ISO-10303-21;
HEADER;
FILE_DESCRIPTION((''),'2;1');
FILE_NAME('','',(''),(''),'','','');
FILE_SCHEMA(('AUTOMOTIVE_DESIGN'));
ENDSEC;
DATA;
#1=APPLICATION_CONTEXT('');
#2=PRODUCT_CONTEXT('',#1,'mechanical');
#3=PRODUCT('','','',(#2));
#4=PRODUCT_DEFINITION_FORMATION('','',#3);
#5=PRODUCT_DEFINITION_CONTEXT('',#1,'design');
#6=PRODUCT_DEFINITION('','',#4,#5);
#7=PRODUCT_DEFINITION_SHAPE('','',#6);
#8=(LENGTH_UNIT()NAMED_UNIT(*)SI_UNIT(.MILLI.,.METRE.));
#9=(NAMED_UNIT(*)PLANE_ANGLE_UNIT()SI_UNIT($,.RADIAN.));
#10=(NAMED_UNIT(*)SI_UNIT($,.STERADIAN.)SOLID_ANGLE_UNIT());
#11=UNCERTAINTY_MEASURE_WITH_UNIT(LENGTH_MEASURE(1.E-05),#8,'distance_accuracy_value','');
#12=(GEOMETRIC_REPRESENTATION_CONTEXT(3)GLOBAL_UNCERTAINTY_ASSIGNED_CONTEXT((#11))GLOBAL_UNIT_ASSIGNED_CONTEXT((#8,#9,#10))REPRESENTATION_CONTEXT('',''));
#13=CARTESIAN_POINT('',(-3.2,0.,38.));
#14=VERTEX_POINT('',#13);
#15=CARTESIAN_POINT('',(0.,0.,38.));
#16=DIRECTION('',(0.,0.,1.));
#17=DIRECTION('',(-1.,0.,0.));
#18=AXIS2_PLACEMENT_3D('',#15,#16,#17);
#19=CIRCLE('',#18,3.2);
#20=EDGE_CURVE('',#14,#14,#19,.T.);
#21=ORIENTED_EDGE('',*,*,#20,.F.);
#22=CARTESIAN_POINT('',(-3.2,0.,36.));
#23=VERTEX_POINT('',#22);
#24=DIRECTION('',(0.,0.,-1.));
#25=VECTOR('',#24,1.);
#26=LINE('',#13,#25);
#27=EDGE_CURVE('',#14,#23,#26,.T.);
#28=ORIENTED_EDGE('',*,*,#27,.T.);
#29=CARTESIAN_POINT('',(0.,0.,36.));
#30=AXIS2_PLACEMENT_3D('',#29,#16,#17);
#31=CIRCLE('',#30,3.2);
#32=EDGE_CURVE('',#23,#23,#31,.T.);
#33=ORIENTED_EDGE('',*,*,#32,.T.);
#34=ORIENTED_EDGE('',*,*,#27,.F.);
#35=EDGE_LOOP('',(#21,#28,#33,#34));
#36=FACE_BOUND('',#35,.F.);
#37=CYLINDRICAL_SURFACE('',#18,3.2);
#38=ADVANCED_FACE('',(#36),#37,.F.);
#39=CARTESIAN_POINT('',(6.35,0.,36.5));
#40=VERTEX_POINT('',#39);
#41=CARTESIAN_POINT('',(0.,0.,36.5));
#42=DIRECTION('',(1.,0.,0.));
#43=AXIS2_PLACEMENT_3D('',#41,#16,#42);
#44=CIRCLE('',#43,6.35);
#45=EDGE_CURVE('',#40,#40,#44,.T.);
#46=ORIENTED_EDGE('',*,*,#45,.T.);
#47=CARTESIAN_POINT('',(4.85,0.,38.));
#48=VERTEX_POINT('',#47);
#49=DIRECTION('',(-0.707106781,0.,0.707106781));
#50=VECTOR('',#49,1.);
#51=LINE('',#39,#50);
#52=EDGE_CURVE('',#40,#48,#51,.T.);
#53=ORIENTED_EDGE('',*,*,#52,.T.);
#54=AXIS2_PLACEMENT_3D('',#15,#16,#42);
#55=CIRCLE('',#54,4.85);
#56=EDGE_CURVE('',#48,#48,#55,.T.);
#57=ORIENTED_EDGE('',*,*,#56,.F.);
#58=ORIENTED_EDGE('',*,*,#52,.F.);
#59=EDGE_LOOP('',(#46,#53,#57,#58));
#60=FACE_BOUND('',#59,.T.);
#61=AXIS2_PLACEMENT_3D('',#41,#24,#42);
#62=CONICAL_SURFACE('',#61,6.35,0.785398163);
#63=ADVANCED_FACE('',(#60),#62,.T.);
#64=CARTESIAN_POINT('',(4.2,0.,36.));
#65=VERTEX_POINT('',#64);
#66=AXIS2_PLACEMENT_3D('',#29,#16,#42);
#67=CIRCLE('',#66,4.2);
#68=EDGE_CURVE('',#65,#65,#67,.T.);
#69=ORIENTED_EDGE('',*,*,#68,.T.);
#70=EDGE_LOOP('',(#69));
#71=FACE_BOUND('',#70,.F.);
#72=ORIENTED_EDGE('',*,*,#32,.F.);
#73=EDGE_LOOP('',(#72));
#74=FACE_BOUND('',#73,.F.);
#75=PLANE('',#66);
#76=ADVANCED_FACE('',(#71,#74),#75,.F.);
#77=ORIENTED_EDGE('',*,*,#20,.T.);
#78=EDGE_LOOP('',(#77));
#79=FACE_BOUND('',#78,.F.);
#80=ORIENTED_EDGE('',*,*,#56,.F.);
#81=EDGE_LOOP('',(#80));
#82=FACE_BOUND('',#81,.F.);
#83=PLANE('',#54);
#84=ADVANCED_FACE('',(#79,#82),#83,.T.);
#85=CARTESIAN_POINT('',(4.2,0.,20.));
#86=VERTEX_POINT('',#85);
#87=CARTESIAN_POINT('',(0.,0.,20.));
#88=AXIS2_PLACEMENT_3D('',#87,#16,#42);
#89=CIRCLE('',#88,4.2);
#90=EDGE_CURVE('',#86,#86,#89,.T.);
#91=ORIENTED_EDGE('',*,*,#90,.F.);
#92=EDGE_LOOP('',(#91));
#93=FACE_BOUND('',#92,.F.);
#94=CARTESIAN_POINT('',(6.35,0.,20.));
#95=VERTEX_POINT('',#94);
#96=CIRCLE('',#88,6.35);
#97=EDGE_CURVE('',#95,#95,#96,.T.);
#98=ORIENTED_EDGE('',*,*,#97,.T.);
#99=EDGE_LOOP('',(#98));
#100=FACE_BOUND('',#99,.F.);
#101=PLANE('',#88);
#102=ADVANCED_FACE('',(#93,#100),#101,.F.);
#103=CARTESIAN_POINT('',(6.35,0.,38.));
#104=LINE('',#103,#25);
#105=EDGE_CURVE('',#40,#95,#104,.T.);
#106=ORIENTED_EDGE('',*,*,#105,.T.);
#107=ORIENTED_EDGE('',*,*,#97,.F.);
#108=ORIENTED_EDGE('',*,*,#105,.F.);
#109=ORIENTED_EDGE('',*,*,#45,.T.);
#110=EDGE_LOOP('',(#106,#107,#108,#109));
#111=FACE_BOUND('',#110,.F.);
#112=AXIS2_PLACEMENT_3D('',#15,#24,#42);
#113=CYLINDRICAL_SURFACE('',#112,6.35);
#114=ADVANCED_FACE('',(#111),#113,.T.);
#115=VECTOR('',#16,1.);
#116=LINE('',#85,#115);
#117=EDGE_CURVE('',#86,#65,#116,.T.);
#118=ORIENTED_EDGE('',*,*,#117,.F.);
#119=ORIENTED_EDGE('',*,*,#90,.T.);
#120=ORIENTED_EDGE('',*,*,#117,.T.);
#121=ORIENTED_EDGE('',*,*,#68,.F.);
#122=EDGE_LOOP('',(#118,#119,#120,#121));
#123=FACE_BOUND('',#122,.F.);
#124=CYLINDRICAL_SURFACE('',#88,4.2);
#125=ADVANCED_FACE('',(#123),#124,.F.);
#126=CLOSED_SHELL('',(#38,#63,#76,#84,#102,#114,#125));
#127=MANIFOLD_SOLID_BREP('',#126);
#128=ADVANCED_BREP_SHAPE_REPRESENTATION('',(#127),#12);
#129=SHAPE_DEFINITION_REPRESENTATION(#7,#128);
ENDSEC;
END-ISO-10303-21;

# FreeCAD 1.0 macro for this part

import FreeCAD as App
import Part
import Sketcher
from FreeCAD import Vector


def edges_at(feature, points):
    """Names of the edges that pass closest to the given points."""
    edges = feature.Shape.Edges
    near = lambda p: min(range(len(edges)), key=lambda i: edges[i].distToShape(Part.Vertex(*p))[0])
    return sorted({f"Edge{near(p) + 1}" for p in points})


def add_polygon(sketch, points):
    """Adds a closed chain of lines whose ends are joined by coincident constraints."""
    first, n = sketch.GeometryCount, len(points)
    for a, b in zip(points, points[1:] + points[:1]):
        sketch.addGeometry(Part.LineSegment(App.Vector(*a, 0), App.Vector(*b, 0)), False)
    for i in range(n):
        sketch.addConstraint(Sketcher.Constraint("Coincident", first + i, 2, first + (i + 1) % n, 1))

doc = App.newDocument("Part")
params = doc.addObject("Spreadsheet::Sheet", "Params")
for row, (alias, value) in enumerate([
    ("sketch1_height", "16 mm"),
    ("sketch1_height2", "18 mm"),
    ("sketch1_width", "4.2 mm"),
    ("sketch1_width2", "2.15 mm"),
    ("revolution_angle", "360 deg"),
    ("sketch2_diameter", "6.4 mm"),
    ("chamfer_size", "1.5 mm"),
], start=1):
    params.set(f"A{row}", alias)
    params.set(f"B{row}", "=" + value)
    params.setAlias(f"B{row}", alias)

body = doc.addObject("PartDesign::Body", "Body")

# Sketch on XZ plane
sketch1 = body.newObject("Sketcher::SketchObject", "Sketch")
sketch1.AttachmentSupport = (doc.getObject("XZ_Plane"), [""])
sketch1.MapMode = "FlatFace"
add_polygon(sketch1, [(4.2, 36), (4.2, 20), (6.3, 20), (6.3, 38), (0, 38), (0, 36)])  # lines 0-5
sketch1.addConstraint(Sketcher.Constraint("Vertical", 0))
sketch1.addConstraint(Sketcher.Constraint("Horizontal", 1))
sketch1.addConstraint(Sketcher.Constraint("Vertical", 2))
sketch1.addConstraint(Sketcher.Constraint("Horizontal", 3))
sketch1.addConstraint(Sketcher.Constraint("Vertical", 4))
sketch1.addConstraint(Sketcher.Constraint("Horizontal", 5))
sketch1.addConstraint(Sketcher.Constraint("PointOnObject", 3, 2, -2))
sketch1.addConstraint(Sketcher.Constraint("DistanceY", 0, 2, 0, 1, 16.0))
sketch1.addConstraint(Sketcher.Constraint("DistanceY", 2, 1, 2, 2, 18.0))
sketch1.addConstraint(Sketcher.Constraint("DistanceX", 5, 1, 5, 2, 4.2))
sketch1.addConstraint(Sketcher.Constraint("DistanceY", -1, 1, 0, 2, 20.0))
sketch1.addConstraint(Sketcher.Constraint("DistanceX", 1, 1, 1, 2, 2.15))
sketch1.setExpression("Constraints[13]", "Params.sketch1_height")
sketch1.setExpression("Constraints[14]", "Params.sketch1_height2")
sketch1.setExpression("Constraints[15]", "Params.sketch1_width")
sketch1.setExpression("Constraints[17]", "Params.sketch1_width2")
revolution = body.newObject("PartDesign::Revolution", "Revolution")
revolution.Profile = sketch1
revolution.ReferenceAxis = (sketch1, ["V_Axis"])
revolution.setExpression("Angle", "Params.revolution_angle")

# Sketch on XY plane
sketch2 = body.newObject("Sketcher::SketchObject", "Sketch001")
sketch2.AttachmentSupport = (doc.getObject("XY_Plane"), [""])
sketch2.MapMode = "FlatFace"
sketch2.AttachmentOffset = App.Placement(Vector(0, 0, 38), App.Rotation())
sketch2.addGeometry(Part.Circle(Vector(0, 0, 0), Vector(0, 0, 1), 3.2), False)
sketch2.addConstraint(Sketcher.Constraint("Coincident", 0, 3, -1, 1))
sketch2.addConstraint(Sketcher.Constraint("Diameter", 0, 6.4))
sketch2.setExpression("Constraints[1]", "Params.sketch2_diameter")
pocket1 = body.newObject("PartDesign::Pocket", "Pocket")
pocket1.Profile = sketch2
pocket1.Type = "ThroughAll"
doc.recompute()

chamfer = body.newObject("PartDesign::Chamfer", "Chamfer")
chamfer.Base = (pocket1, edges_at(pocket1, [(-6.35, 0, 38)]))
chamfer.setExpression("Size", "Params.chamfer_size")

doc.recompute()
